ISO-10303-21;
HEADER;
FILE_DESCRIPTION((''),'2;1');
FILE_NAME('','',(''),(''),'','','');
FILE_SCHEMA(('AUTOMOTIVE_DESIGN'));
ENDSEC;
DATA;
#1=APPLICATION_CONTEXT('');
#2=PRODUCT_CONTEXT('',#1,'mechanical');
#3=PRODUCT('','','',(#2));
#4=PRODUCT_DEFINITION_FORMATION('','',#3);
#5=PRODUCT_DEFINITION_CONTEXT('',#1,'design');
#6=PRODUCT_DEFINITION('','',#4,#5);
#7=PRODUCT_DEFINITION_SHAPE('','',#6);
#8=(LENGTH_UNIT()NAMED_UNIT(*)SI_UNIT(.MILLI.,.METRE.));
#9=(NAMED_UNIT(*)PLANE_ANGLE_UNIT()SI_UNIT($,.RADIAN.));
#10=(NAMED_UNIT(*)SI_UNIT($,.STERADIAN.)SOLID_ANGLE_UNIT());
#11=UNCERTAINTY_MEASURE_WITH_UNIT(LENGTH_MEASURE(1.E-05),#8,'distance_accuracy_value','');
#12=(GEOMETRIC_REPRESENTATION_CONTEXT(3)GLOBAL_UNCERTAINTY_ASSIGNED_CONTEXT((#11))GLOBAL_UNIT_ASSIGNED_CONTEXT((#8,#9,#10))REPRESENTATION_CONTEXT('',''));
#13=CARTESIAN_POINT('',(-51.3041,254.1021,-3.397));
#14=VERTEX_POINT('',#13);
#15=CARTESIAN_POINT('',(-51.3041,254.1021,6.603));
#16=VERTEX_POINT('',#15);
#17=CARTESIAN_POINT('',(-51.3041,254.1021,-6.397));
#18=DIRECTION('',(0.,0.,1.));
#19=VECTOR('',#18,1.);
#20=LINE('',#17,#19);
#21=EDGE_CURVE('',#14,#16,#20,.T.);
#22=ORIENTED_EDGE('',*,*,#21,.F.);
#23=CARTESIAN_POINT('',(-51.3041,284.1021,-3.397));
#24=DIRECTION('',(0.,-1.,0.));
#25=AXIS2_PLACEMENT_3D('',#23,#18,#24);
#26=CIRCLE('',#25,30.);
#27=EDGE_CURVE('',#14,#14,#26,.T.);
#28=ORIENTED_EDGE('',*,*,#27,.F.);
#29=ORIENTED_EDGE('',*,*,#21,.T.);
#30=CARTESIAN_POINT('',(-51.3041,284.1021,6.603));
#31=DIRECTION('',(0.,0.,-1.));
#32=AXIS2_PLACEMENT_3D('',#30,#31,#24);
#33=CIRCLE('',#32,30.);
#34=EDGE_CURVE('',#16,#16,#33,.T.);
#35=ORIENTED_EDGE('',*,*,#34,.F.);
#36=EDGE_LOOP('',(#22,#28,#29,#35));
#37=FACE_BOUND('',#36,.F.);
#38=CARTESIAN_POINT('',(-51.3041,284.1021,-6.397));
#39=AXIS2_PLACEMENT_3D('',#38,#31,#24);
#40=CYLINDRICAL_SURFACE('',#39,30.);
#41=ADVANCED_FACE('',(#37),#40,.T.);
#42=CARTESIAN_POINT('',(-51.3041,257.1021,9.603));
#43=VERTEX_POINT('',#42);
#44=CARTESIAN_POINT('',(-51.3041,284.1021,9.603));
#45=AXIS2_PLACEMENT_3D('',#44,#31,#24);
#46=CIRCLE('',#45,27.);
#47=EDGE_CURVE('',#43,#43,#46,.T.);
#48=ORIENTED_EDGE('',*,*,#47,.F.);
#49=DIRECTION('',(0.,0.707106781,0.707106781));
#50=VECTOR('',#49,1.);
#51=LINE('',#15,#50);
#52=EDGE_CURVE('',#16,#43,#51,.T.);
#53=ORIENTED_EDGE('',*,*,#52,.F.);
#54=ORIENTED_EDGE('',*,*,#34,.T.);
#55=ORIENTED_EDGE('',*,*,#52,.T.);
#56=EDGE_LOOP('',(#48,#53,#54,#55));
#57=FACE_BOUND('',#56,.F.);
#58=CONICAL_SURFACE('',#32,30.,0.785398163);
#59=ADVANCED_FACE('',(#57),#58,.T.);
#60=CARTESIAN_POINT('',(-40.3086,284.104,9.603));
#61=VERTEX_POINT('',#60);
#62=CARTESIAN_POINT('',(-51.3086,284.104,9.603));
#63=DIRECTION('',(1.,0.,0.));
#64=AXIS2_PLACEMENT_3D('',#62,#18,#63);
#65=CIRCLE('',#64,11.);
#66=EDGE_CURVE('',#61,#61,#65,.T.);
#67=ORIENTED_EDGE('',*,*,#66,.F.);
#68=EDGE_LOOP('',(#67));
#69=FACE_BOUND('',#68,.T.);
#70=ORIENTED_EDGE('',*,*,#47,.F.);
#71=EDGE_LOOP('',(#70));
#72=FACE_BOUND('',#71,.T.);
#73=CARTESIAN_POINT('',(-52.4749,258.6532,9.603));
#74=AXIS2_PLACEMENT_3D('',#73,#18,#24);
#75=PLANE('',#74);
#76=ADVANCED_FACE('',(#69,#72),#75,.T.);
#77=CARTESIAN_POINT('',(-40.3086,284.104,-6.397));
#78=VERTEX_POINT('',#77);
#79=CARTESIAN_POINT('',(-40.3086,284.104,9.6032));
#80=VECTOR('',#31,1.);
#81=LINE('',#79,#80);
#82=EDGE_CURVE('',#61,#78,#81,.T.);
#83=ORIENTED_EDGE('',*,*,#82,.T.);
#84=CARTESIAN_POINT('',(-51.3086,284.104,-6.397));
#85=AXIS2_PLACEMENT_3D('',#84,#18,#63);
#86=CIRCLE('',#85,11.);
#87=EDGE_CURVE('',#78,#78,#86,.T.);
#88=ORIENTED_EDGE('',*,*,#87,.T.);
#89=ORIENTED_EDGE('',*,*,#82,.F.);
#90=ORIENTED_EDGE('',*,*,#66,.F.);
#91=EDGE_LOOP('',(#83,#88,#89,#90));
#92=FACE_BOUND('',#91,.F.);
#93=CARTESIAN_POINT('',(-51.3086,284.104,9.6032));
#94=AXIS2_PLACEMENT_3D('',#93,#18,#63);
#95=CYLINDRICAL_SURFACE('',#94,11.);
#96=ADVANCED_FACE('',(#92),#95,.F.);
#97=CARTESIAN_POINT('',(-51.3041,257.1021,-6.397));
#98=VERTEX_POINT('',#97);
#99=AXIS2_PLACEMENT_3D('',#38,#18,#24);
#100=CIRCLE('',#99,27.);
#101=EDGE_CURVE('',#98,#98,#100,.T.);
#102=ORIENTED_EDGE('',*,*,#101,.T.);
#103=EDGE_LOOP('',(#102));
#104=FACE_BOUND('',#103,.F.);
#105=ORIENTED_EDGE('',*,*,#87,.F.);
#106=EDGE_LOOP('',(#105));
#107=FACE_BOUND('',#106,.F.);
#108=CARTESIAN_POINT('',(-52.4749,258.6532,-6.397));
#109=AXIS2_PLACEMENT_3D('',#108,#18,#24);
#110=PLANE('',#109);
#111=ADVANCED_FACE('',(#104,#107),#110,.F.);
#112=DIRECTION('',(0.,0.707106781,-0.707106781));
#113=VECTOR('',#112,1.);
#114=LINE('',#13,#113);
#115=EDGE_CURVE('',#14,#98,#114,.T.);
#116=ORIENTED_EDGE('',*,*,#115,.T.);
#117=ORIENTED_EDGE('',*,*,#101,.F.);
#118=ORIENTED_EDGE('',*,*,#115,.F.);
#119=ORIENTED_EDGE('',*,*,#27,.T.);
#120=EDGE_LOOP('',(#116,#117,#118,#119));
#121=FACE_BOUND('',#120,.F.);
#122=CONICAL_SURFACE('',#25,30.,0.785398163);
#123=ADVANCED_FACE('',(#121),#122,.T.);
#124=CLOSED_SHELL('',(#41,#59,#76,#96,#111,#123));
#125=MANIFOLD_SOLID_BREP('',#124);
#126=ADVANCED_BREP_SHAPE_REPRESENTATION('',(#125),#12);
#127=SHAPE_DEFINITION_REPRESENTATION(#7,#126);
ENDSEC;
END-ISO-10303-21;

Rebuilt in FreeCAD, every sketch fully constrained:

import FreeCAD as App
import Part
import Sketcher
from FreeCAD import Vector
Q = App.Units.Quantity


def edges_at(feature, points):
    """Names of the edges that pass closest to the given points."""
    edges = feature.Shape.Edges
    near = lambda p: min(range(len(edges)), key=lambda i: edges[i].distToShape(Part.Vertex(*p))[0])
    return sorted({f"Edge{near(p) + 1}" for p in points})

doc = App.newDocument("Part")
body = doc.addObject("PartDesign::Body", "Body")

# Sketch on XY plane
sketch1 = doc.addObject("Sketcher::SketchObject", "Sketch")
body.addObject(sketch1)
sketch1.AttachmentSupport = (doc.XY_Plane, [""])
sketch1.MapMode = "FlatFace"
sketch1.AttachmentOffset = App.Placement(Vector(0, 0, -6.397), App.Rotation())
sketch1.addGeometry(Part.Circle(Vector(-51, 284, 0), Vector(0, 0, 1), 30), False)
sketch1.addConstraint([
    Sketcher.Constraint("Diameter", 0, Q("60 mm")),
    Sketcher.Constraint("DistanceX", 0, 3, -1, 1, Q("51.304 mm")),
    Sketcher.Constraint("DistanceY", -1, 1, 0, 3, Q("284.102 mm")),
])
pad1 = doc.addObject("PartDesign::Pad", "Pad")
body.addObject(pad1)
pad1.Profile = sketch1
pad1.Length = 16
doc.recompute()

chamfer = doc.addObject("PartDesign::Chamfer", "Chamfer")
body.addObject(chamfer)
chamfer.Base = (pad1, edges_at(pad1, [(-51.304, 314.102, -6.397), (-51.304, 314.102, 9.603)]))
chamfer.Size = 3

# Sketch on XY plane
sketch2 = doc.addObject("Sketcher::SketchObject", "Sketch001")
body.addObject(sketch2)
sketch2.AttachmentSupport = (doc.XY_Plane, [""])
sketch2.MapMode = "FlatFace"
sketch2.AttachmentOffset = App.Placement(Vector(0, 0, 9.6032), App.Rotation())
sketch2.addGeometry(Part.Circle(Vector(-51, 284, 0), Vector(0, 0, 1), 11), False)
sketch2.addConstraint([
    Sketcher.Constraint("Diameter", 0, Q("22 mm")),
    Sketcher.Constraint("DistanceY", -1, 1, 0, 3, Q("284.104 mm")),
    Sketcher.Constraint("DistanceX", 0, 3, -1, 1, Q("51.3086 mm")),
])
pocket1 = doc.addObject("PartDesign::Pocket", "Pocket")
body.addObject(pocket1)
pocket1.Profile = sketch2
pocket1.Type = "ThroughAll"

doc.recompute()
